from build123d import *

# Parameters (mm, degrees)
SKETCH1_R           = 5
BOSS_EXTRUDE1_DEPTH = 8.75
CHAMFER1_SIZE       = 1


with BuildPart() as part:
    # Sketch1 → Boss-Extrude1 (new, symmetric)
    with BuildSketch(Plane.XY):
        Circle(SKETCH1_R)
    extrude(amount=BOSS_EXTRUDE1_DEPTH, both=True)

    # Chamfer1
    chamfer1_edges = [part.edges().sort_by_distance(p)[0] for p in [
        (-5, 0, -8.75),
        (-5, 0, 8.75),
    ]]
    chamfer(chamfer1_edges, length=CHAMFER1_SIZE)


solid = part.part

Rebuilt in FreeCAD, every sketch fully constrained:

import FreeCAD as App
import Part
import Sketcher
Q = App.Units.Quantity


def edges_at(feature, points):
    """Names of the edges that pass closest to the given points."""
    edges = feature.Shape.Edges
    near = lambda p: min(range(len(edges)), key=lambda i: edges[i].distToShape(Part.Vertex(*p))[0])
    return sorted({f"Edge{near(p) + 1}" for p in points})

doc = App.newDocument("Part")
body = doc.addObject("PartDesign::Body", "Body")

# Sketch on XY plane
sketch1 = doc.addObject("Sketcher::SketchObject", "Sketch")
body.addObject(sketch1)
sketch1.AttachmentSupport = (doc.XY_Plane, [""])
sketch1.MapMode = "FlatFace"
sketch1.addGeometry(Part.Circle(App.Vector(0, 0, 0), App.Vector(0, 0, 1), 5), False)
sketch1.addConstraint([
    Sketcher.Constraint("Coincident", 0, 3, -1, 1),
    Sketcher.Constraint("Diameter", 0, Q("10 mm")),
])
pad1 = doc.addObject("PartDesign::Pad", "Pad")
body.addObject(pad1)
pad1.Profile = sketch1
pad1.Length = 17.5
pad1.Midplane = True
doc.recompute()

chamfer = doc.addObject("PartDesign::Chamfer", "Chamfer")
body.addObject(chamfer)
chamfer.Base = (pad1, edges_at(pad1, [(-5, 0, -8.75), (-5, 0, 8.75)]))
chamfer.Size = 1

doc.recompute()
